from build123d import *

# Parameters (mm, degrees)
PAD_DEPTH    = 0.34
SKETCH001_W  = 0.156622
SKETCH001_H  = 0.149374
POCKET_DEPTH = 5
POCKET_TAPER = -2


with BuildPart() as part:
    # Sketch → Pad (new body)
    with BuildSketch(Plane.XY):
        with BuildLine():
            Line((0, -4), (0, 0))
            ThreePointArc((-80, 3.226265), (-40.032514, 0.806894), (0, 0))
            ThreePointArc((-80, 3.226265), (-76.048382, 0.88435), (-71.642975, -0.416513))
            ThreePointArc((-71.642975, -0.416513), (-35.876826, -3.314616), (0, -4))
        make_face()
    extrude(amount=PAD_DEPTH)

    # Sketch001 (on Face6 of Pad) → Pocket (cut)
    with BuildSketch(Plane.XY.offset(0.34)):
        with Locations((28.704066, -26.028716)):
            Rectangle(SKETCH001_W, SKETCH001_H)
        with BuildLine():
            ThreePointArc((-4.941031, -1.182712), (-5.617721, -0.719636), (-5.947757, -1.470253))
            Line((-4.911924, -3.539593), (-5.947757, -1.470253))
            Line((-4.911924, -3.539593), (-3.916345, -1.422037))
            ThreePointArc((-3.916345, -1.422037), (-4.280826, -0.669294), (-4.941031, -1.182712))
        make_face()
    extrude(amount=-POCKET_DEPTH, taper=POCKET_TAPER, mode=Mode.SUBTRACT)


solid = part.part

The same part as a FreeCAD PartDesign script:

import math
import FreeCAD as App
import Part
import Sketcher

V = App.Vector


def add_polygon(sketch, points):
    """Adds a closed chain of lines whose ends are joined by coincident constraints."""
    first, n = sketch.GeometryCount, len(points)
    for a, b in zip(points, points[1:] + points[:1]):
        sketch.addGeometry(Part.LineSegment(App.Vector(*a, 0), App.Vector(*b, 0)), False)
    for i in range(n):
        sketch.addConstraint(Sketcher.Constraint("Coincident", first + i, 2, first + (i + 1) % n, 1))

doc = App.newDocument("Part")
body = doc.addObject("PartDesign::Body", "Body")

# Sketch on XY plane
sketch1 = body.newObject("Sketcher::SketchObject", "Sketch")
sketch1.AttachmentSupport = (doc.getObject("XY_Plane"), [""])
sketch1.MapMode = "FlatFace"
sketch1.addGeometry([
    Part.LineSegment(V(0, -4, 0), V(0, 0, 0)),
    Part.ArcOfCircle(Part.Circle(V(0, 993.5, 0), V(0, 0, 1), 993.5), math.radians(-94.62), math.radians(-90)),
    Part.ArcOfCircle(Part.Circle(V(-68.6, 17.9, 0), V(0, 0, 1), 18.6), math.radians(-128), math.radians(-99)),
    Part.ArcOfCircle(Part.Circle(V(-6.8, 577.1, 0), V(0, 0, 1), 581.2), math.radians(-96.4), math.radians(-89.33)),
], False)
sketch1.addConstraint([
    Sketcher.Constraint("Coincident", 0, 2, 1, 2),
    Sketcher.Constraint("Coincident", 1, 1, 2, 1),
    Sketcher.Constraint("Coincident", 2, 2, 3, 1),
    Sketcher.Constraint("Coincident", 3, 2, 0, 1),
    Sketcher.Constraint("Vertical", 0),
    Sketcher.Constraint("Coincident", 0, 2, -1, 1),
    Sketcher.Constraint("DistanceY", 0, 1, 0, 2, 4.0),
    Sketcher.Constraint("Radius", 1, 993.47224),
    Sketcher.Constraint("Radius", 2, 18.579446),
    Sketcher.Constraint("Radius", 3, 581.189345),
    Sketcher.Constraint("DistanceX", 3, 3, -1, 1, 6.8428),
    Sketcher.Constraint("DistanceY", 1, 1, 2, 3, 14.689809),
    Sketcher.Constraint("DistanceY", 2, 2, 1, 1, 3.642778),
    Sketcher.Constraint("DistanceX", 2, 2, 1, 3, 71.642979),
])
pad1 = body.newObject("PartDesign::Pad", "Pad")
pad1.Profile = sketch1
pad1.Length = 0.34

# Sketch on XY plane
sketch2 = body.newObject("Sketcher::SketchObject", "Sketch001")
sketch2.AttachmentSupport = (doc.getObject("XY_Plane"), [""])
sketch2.MapMode = "FlatFace"
sketch2.AttachmentOffset = App.Placement(V(0, 0, 0.34), App.Rotation())
add_polygon(sketch2, [(28.63, -25.95), (28.63, -26.1), (28.78, -26.1), (28.78, -25.95)])  # lines 0-3
sketch2.addGeometry(Part.ArcOfCircle(Part.Circle(V(-5.47, -1.23, 0), V(0, 0, 1), 0.53), math.radians(5), math.radians(207)), False)  # 4
sketch2.addGeometry(Part.LineSegment(V(-5.95, -1.47, 0), V(-4.91, -3.54, 0)), False)  # 5
sketch2.addGeometry(Part.LineSegment(V(-4.91, -3.54, 0), V(-3.92, -1.42, 0)), False)  # 6
sketch2.addGeometry(Part.ArcOfCircle(Part.Circle(V(-4.4, -1.19, 0), V(0, 0, 1), 0.54), math.radians(-25), math.radians(179)), False)  # 7
sketch2.addConstraint([
    Sketcher.Constraint("Tangent", 4, 2, 5, 1),
    Sketcher.Constraint("Coincident", 5, 2, 6, 1),
    Sketcher.Constraint("Tangent", 6, 2, 7, 1),
    Sketcher.Constraint("Coincident", 7, 2, 4, 1),
    Sketcher.Constraint("Vertical", 0),
    Sketcher.Constraint("Horizontal", 1),
    Sketcher.Constraint("Vertical", 2),
    Sketcher.Constraint("Horizontal", 3),
    Sketcher.Constraint("Radius", 4, 0.532669),
    Sketcher.Constraint("Radius", 7, 0.537955),
    Sketcher.Constraint("DistanceX", 1, 1, 1, 2, 0.156622),
    Sketcher.Constraint("DistanceX", 6, 2, 3, 2, 32.5421),
    Sketcher.Constraint("DistanceX", 4, 3, 7, 2, 0.5304),
    Sketcher.Constraint("Distance", 6, 2.339919),
    Sketcher.Constraint("DistanceY", 0, 2, 0, 1, 0.149374),
    Sketcher.Constraint("DistanceX", 4, 3, -1, 1, 5.471431),
    Sketcher.Constraint("DistanceY", 7, 3, -1, 1, 1.19315),
    Sketcher.Constraint("DistanceY", 2, 2, -1, 1, 25.954029),
    Sketcher.Constraint("DistanceY", 7, 2, -1, 1, 1.182712),
    Sketcher.Constraint("DistanceY", 4, 2, 4, 3, 0.238431),
])
pocket1 = body.newObject("PartDesign::Pocket", "Pocket")
pocket1.Profile = sketch2
pocket1.Length = 5
pocket1.TaperAngle = 2

doc.recompute()
